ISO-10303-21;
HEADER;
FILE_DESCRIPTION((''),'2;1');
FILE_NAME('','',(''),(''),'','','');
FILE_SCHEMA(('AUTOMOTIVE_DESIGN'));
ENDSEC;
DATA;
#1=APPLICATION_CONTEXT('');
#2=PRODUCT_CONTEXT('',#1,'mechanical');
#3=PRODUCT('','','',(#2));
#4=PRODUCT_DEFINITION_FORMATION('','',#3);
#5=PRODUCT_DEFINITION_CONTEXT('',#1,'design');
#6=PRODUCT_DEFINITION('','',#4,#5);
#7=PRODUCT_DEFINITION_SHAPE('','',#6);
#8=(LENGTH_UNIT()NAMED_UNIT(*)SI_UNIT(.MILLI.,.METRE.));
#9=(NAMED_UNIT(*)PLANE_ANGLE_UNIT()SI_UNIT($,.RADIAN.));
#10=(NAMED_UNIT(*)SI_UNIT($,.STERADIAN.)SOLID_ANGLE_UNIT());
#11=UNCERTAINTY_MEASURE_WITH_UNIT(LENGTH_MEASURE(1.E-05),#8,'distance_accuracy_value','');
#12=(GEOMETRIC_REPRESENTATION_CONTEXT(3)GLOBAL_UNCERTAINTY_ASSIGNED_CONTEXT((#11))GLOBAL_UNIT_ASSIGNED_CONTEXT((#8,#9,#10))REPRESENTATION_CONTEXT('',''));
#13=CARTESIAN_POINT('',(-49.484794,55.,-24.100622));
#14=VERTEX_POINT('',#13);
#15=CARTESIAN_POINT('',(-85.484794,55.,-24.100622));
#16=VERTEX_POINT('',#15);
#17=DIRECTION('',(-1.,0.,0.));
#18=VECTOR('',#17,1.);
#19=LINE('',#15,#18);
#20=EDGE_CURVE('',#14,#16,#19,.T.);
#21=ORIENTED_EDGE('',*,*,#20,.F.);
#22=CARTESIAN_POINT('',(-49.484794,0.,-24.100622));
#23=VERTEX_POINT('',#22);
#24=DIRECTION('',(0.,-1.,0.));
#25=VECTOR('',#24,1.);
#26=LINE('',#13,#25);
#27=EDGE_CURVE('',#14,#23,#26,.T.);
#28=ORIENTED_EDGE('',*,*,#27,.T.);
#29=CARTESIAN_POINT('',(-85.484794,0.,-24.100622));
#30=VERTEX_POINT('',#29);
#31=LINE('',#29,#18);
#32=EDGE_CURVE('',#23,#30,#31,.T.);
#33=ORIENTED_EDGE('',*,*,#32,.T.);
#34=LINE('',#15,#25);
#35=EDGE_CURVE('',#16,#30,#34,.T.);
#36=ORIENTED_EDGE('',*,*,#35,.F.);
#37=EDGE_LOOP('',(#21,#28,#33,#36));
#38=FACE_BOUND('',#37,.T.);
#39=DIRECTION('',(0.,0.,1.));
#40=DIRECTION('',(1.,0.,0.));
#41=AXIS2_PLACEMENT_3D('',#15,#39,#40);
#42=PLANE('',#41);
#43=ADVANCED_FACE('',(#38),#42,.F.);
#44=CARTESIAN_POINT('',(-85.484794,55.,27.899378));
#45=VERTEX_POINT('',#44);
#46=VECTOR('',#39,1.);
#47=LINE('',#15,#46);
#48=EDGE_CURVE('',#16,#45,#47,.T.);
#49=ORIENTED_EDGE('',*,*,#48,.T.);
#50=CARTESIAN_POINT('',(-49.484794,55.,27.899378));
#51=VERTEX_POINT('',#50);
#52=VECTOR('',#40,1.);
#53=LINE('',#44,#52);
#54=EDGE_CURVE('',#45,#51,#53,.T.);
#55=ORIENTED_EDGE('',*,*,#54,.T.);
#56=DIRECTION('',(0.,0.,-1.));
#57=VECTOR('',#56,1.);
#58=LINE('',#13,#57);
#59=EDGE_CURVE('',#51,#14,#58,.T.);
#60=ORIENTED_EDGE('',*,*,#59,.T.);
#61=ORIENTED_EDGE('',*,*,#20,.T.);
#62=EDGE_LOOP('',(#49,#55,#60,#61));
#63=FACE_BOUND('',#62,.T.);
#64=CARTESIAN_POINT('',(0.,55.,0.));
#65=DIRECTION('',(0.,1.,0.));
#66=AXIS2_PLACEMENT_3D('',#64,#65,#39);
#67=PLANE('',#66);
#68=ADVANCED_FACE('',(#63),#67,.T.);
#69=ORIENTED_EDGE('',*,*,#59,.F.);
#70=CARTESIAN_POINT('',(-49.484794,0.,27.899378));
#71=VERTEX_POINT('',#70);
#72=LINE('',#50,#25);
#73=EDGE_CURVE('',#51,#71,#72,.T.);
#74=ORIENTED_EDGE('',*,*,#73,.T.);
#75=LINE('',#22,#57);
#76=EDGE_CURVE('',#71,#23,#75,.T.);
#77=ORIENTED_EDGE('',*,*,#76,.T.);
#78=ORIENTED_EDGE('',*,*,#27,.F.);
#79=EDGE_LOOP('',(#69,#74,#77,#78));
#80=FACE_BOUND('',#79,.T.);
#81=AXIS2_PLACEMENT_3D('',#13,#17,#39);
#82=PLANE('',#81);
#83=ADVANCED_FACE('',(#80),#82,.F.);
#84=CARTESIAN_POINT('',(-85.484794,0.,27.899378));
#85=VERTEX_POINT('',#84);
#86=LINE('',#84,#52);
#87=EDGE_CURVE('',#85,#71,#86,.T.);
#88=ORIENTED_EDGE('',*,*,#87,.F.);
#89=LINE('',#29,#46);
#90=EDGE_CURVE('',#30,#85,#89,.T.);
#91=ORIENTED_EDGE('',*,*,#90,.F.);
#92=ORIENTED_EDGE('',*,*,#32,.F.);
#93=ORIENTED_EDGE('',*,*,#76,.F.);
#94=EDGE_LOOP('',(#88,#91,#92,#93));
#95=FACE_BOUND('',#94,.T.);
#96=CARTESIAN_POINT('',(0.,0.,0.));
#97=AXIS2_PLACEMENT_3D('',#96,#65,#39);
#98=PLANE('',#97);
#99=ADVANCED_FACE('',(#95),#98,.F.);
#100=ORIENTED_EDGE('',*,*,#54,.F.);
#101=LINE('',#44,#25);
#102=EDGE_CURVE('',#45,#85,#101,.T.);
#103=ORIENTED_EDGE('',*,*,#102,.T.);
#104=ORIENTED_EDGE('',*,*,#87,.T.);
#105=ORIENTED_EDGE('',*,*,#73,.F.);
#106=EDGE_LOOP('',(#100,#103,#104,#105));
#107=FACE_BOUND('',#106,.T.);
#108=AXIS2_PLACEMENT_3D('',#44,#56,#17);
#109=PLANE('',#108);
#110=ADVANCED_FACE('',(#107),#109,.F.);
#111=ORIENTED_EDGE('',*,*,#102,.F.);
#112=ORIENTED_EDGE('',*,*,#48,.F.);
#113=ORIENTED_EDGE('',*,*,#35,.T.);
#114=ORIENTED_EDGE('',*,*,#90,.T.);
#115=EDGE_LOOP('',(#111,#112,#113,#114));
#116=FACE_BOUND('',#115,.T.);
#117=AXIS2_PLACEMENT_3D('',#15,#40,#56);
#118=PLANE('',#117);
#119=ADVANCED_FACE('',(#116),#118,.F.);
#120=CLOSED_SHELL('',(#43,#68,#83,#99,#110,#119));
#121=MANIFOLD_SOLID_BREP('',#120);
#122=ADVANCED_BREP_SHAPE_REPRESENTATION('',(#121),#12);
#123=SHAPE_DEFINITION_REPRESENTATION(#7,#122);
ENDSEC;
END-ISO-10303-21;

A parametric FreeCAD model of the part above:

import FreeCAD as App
import Part
import Sketcher

V = App.Vector

doc = App.newDocument("Part")
body = doc.addObject("PartDesign::Body", "Body")

# Sketch on XZ plane
sketch1 = body.newObject("Sketcher::SketchObject", "Sketch")
sketch1.AttachmentSupport = (doc.getObject("XZ_Plane"), [""])
sketch1.MapMode = "FlatFace"
sketch1.addGeometry([
    Part.LineSegment(V(-85, -24, 0), V(-85, 28, 0)),
    Part.LineSegment(V(-85, 28, 0), V(-49, 28, 0)),
    Part.LineSegment(V(-49, 28, 0), V(-49, -24, 0)),
    Part.LineSegment(V(-49, -24, 0), V(-85, -24, 0)),
], False)
sketch1.addConstraint([
    Sketcher.Constraint("Coincident", 0, 2, 1, 1),
    Sketcher.Constraint("Coincident", 1, 2, 2, 1),
    Sketcher.Constraint("Coincident", 2, 2, 3, 1),
    Sketcher.Constraint("Coincident", 3, 2, 0, 1),
    Sketcher.Constraint("Vertical", 0),
    Sketcher.Constraint("Horizontal", 1),
    Sketcher.Constraint("Vertical", 2),
    Sketcher.Constraint("Horizontal", 3),
    Sketcher.Constraint("DistanceX", 1, 1, 1, 2, 36.0),
    Sketcher.Constraint("DistanceY", 0, 1, 0, 2, 52.0),
    Sketcher.Constraint("DistanceY", -1, 1, 0, 2, 27.899378),
    Sketcher.Constraint("DistanceX", 0, 2, -1, 1, 85.484794),
])
pad1 = body.newObject("PartDesign::Pad", "Pad")
pad1.Profile = sketch1
pad1.Length = 55
pad1.Reversed = True

doc.recompute()
